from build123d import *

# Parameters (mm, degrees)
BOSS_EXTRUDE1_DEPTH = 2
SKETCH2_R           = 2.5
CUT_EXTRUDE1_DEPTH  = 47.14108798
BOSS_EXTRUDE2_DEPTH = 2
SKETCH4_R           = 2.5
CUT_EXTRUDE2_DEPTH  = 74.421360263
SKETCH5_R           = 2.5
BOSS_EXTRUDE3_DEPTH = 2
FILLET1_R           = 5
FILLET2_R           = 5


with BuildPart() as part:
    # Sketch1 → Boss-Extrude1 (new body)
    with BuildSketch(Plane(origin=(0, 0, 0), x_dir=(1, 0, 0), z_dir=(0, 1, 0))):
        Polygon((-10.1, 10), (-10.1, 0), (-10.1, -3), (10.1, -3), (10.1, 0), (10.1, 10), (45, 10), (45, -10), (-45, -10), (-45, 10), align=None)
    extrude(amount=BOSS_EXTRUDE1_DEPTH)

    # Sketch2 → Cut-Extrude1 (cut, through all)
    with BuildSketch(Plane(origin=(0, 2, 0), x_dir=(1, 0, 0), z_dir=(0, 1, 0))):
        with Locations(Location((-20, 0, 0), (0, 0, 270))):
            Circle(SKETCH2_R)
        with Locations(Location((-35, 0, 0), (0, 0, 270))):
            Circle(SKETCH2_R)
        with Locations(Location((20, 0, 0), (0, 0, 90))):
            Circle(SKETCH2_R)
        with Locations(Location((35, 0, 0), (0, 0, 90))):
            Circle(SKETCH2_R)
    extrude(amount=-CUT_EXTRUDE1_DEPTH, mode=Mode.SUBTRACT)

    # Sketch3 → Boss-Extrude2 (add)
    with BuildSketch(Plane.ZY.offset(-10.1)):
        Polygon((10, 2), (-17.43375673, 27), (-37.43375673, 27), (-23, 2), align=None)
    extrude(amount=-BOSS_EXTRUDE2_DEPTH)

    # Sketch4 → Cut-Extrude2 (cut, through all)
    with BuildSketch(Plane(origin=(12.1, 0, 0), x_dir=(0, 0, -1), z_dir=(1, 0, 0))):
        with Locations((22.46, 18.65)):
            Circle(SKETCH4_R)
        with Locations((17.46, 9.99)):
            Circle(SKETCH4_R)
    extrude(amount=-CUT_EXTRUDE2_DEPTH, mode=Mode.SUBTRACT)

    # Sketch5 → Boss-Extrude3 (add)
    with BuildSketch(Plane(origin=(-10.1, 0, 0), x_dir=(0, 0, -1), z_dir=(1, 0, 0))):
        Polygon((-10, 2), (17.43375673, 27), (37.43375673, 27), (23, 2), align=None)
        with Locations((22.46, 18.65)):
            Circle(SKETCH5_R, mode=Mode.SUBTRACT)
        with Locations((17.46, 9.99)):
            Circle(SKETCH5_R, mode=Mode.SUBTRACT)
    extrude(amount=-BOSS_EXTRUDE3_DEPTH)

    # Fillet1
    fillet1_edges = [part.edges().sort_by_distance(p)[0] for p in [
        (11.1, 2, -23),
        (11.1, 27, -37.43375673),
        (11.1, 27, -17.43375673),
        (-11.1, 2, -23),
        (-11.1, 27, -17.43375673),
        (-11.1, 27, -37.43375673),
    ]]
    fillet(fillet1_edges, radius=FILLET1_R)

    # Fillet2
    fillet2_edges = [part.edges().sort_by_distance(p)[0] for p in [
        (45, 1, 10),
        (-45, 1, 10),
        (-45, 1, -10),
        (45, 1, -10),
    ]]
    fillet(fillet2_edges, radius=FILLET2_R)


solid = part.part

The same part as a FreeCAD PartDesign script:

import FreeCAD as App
import Part
import Sketcher
Q = App.Units.Quantity


def edges_at(feature, points):
    """Names of the edges that pass closest to the given points."""
    edges = feature.Shape.Edges
    near = lambda p: min(range(len(edges)), key=lambda i: edges[i].distToShape(Part.Vertex(*p))[0])
    return sorted({f"Edge{near(p) + 1}" for p in points})

doc = App.newDocument("Part")
body = doc.addObject("PartDesign::Body", "Body")

# Sketch on XZ plane
sketch1 = body.newObject("Sketcher::SketchObject", "Sketch")
sketch1.AttachmentSupport = (doc.getObject("XZ_Plane"), [""])
sketch1.MapMode = "FlatFace"
sketch1.addGeometry(Part.LineSegment(App.Vector(-10, 3, 0), App.Vector(-10, -10, 0)), False)
sketch1.addGeometry(Part.LineSegment(App.Vector(-10, -10, 0), App.Vector(-45, -10, 0)), False)
sketch1.addGeometry(Part.LineSegment(App.Vector(-45, -10, 0), App.Vector(-45, 10, 0)), False)
sketch1.addGeometry(Part.LineSegment(App.Vector(-45, 10, 0), App.Vector(45, 10, 0)), False)
sketch1.addGeometry(Part.LineSegment(App.Vector(45, 10, 0), App.Vector(45, -10, 0)), False)
sketch1.addGeometry(Part.LineSegment(App.Vector(45, -10, 0), App.Vector(10, -10, 0)), False)
sketch1.addGeometry(Part.LineSegment(App.Vector(10, -10, 0), App.Vector(10, 3, 0)), False)
sketch1.addGeometry(Part.LineSegment(App.Vector(10, 3, 0), App.Vector(-10, 3, 0)), False)
sketch1.addConstraint(Sketcher.Constraint("Coincident", 0, 2, 1, 1))
sketch1.addConstraint(Sketcher.Constraint("Coincident", 1, 2, 2, 1))
sketch1.addConstraint(Sketcher.Constraint("Coincident", 2, 2, 3, 1))
sketch1.addConstraint(Sketcher.Constraint("Coincident", 3, 2, 4, 1))
sketch1.addConstraint(Sketcher.Constraint("Coincident", 4, 2, 5, 1))
sketch1.addConstraint(Sketcher.Constraint("Coincident", 5, 2, 6, 1))
sketch1.addConstraint(Sketcher.Constraint("Coincident", 6, 2, 7, 1))
sketch1.addConstraint(Sketcher.Constraint("Coincident", 7, 2, 0, 1))
sketch1.addConstraint(Sketcher.Constraint("Vertical", 0))
sketch1.addConstraint(Sketcher.Constraint("Horizontal", 1))
sketch1.addConstraint(Sketcher.Constraint("Vertical", 2))
sketch1.addConstraint(Sketcher.Constraint("Horizontal", 3))
sketch1.addConstraint(Sketcher.Constraint("Vertical", 4))
sketch1.addConstraint(Sketcher.Constraint("Horizontal", 5))
sketch1.addConstraint(Sketcher.Constraint("Vertical", 6))
sketch1.addConstraint(Sketcher.Constraint("Horizontal", 7))
sketch1.addConstraint(Sketcher.Constraint("Symmetric", 1, 2, 3, 2, -1, 1))
sketch1.addConstraint(Sketcher.Constraint("Symmetric", 0, 2, 5, 2, -2))
sketch1.addConstraint(Sketcher.Constraint("DistanceX", 3, 1, 3, 2, Q("90 mm")))
sketch1.addConstraint(Sketcher.Constraint("DistanceY", 0, 2, 0, 1, Q("13 mm")))
sketch1.addConstraint(Sketcher.Constraint("DistanceY", 2, 1, 2, 2, Q("20 mm")))
sketch1.addConstraint(Sketcher.Constraint("DistanceX", 1, 2, 1, 1, Q("34.9 mm")))
pad1 = body.newObject("PartDesign::Pad", "Pad")
pad1.Profile = sketch1
pad1.Length = 2
pad1.Reversed = True

# Sketch on XZ plane
sketch2 = body.newObject("Sketcher::SketchObject", "Sketch001")
sketch2.AttachmentSupport = (doc.getObject("XZ_Plane"), [""])
sketch2.MapMode = "FlatFace"
sketch2.AttachmentOffset = App.Placement(App.Vector(0, 0, -2), App.Rotation())
sketch2.addGeometry(Part.Circle(App.Vector(-20, 0, 0), App.Vector(0, 0, 1), 2.5), False)
sketch2.addGeometry(Part.Circle(App.Vector(-35, 0, 0), App.Vector(0, 0, 1), 2.5), False)
sketch2.addGeometry(Part.Circle(App.Vector(20, 0, 0), App.Vector(0, 0, 1), 2.5), False)
sketch2.addGeometry(Part.Circle(App.Vector(35, 0, 0), App.Vector(0, 0, 1), 2.5), False)
sketch2.addConstraint(Sketcher.Constraint("Equal", 0, 1))
sketch2.addConstraint(Sketcher.Constraint("Equal", 1, 2))
sketch2.addConstraint(Sketcher.Constraint("Equal", 2, 3))
sketch2.addConstraint(Sketcher.Constraint("Symmetric", 0, 3, 2, 3, -1, 1))
sketch2.addConstraint(Sketcher.Constraint("Symmetric", 1, 3, 3, 3, -1, 1))
sketch2.addConstraint(Sketcher.Constraint("PointOnObject", 0, 3, -1))
sketch2.addConstraint(Sketcher.Constraint("PointOnObject", 1, 3, -1))
sketch2.addConstraint(Sketcher.Constraint("Diameter", 0, Q("5 mm")))
sketch2.addConstraint(Sketcher.Constraint("DistanceX", 0, 3, -1, 1, Q("20 mm")))
sketch2.addConstraint(Sketcher.Constraint("DistanceX", 1, 3, -1, 1, Q("35 mm")))
pocket1 = body.newObject("PartDesign::Pocket", "Pocket")
pocket1.Profile = sketch2
pocket1.Type = "ThroughAll"
pocket1.Reversed = True

# Sketch on YZ plane
sketch3 = body.newObject("Sketcher::SketchObject", "Sketch002")
sketch3.AttachmentSupport = (doc.getObject("YZ_Plane"), [""])
sketch3.MapMode = "FlatFace"
sketch3.AttachmentOffset = App.Placement(App.Vector(0, 0, 10.1), App.Rotation())
sketch3.addGeometry(Part.LineSegment(App.Vector(2, 10, 0), App.Vector(27, -17, 0)), False)
sketch3.addGeometry(Part.LineSegment(App.Vector(27, -17, 0), App.Vector(27, -37, 0)), False)
sketch3.addGeometry(Part.LineSegment(App.Vector(27, -37, 0), App.Vector(2, -23, 0)), False)
sketch3.addGeometry(Part.LineSegment(App.Vector(2, -23, 0), App.Vector(2, 10, 0)), False)
sketch3.addConstraint(Sketcher.Constraint("Coincident", 0, 2, 1, 1))
sketch3.addConstraint(Sketcher.Constraint("Coincident", 1, 2, 2, 1))
sketch3.addConstraint(Sketcher.Constraint("Coincident", 2, 2, 3, 1))
sketch3.addConstraint(Sketcher.Constraint("Coincident", 3, 2, 0, 1))
sketch3.addConstraint(Sketcher.Constraint("Vertical", 1))
sketch3.addConstraint(Sketcher.Constraint("Vertical", 3))
sketch3.addConstraint(Sketcher.Constraint("DistanceY", 1, 2, 1, 1, Q("20 mm")))
sketch3.addConstraint(Sketcher.Constraint("DistanceY", 3, 1, 3, 2, Q("33 mm")))
sketch3.addConstraint(Sketcher.Constraint("Angle", 2, Q("150 deg")))
sketch3.addConstraint(Sketcher.Constraint("DistanceX", -1, 1, 0, 2, Q("27 mm")))
sketch3.addConstraint(Sketcher.Constraint("DistanceX", -1, 1, 2, 2, Q("2 mm")))
sketch3.addConstraint(Sketcher.Constraint("DistanceY", 2, 2, -1, 1, Q("23 mm")))
pad2 = body.newObject("PartDesign::Pad", "Pad001")
pad2.Profile = sketch3
pad2.Length = 2

# Sketch on YZ plane
sketch4 = body.newObject("Sketcher::SketchObject", "Sketch003")
sketch4.AttachmentSupport = (doc.getObject("YZ_Plane"), [""])
sketch4.MapMode = "FlatFace"
sketch4.AttachmentOffset = App.Placement(App.Vector(0, 0, 12.1), App.Rotation())
sketch4.addGeometry(Part.Circle(App.Vector(18.6, -22.5, 0), App.Vector(0, 0, 1), 2.5), False)
sketch4.addGeometry(Part.Circle(App.Vector(10, -17.5, 0), App.Vector(0, 0, 1), 2.5), False)
sketch4.addConstraint(Sketcher.Constraint("Equal", 0, 1))
sketch4.addConstraint(Sketcher.Constraint("Diameter", 0, Q("5 mm")))
sketch4.addConstraint(Sketcher.Constraint("DistanceY", 0, 3, 1, 3, Q("5 mm")))
sketch4.addConstraint(Sketcher.Constraint("DistanceX", -1, 1, 0, 3, Q("18.65 mm")))
sketch4.addConstraint(Sketcher.Constraint("DistanceY", 0, 3, -1, 1, Q("22.46 mm")))
sketch4.addConstraint(Sketcher.Constraint("DistanceX", -1, 1, 1, 3, Q("9.99 mm")))
pocket2 = body.newObject("PartDesign::Pocket", "Pocket001")
pocket2.Profile = sketch4
pocket2.Type = "ThroughAll"

# Sketch on YZ plane
sketch5 = body.newObject("Sketcher::SketchObject", "Sketch004")
sketch5.AttachmentSupport = (doc.getObject("YZ_Plane"), [""])
sketch5.MapMode = "FlatFace"
sketch5.AttachmentOffset = App.Placement(App.Vector(0, 0, -10.1), App.Rotation())
sketch5.addGeometry(Part.LineSegment(App.Vector(27, -17.4, 0), App.Vector(2, 10, 0)), False)
sketch5.addGeometry(Part.LineSegment(App.Vector(2, 10, 0), App.Vector(2, -23, 0)), False)
sketch5.addGeometry(Part.LineSegment(App.Vector(2, -23, 0), App.Vector(27, -37.4, 0)), False)
sketch5.addGeometry(Part.LineSegment(App.Vector(27, -37.4, 0), App.Vector(27, -17.4, 0)), False)
sketch5.addGeometry(Part.Circle(App.Vector(10, -17.5, 0), App.Vector(0, 0, 1), 2.5), False)
sketch5.addGeometry(Part.Circle(App.Vector(18.6, -22.5, 0), App.Vector(0, 0, 1), 2.5), False)
sketch5.addConstraint(Sketcher.Constraint("Coincident", 0, 2, 1, 1))
sketch5.addConstraint(Sketcher.Constraint("Coincident", 1, 2, 2, 1))
sketch5.addConstraint(Sketcher.Constraint("Coincident", 2, 2, 3, 1))
sketch5.addConstraint(Sketcher.Constraint("Coincident", 3, 2, 0, 1))
sketch5.addConstraint(Sketcher.Constraint("Vertical", 1))
sketch5.addConstraint(Sketcher.Constraint("Vertical", 3))
sketch5.addConstraint(Sketcher.Constraint("Equal", 4, 5))
sketch5.addConstraint(Sketcher.Constraint("Diameter", 4, Q("5 mm")))
sketch5.addConstraint(Sketcher.Constraint("DistanceY", 1, 2, 1, 1, Q("33 mm")))
sketch5.addConstraint(Sketcher.Constraint("DistanceY", 3, 1, 3, 2, Q("20 mm")))
sketch5.addConstraint(Sketcher.Constraint("Angle", 2, Q("-30 deg")))
sketch5.addConstraint(Sketcher.Constraint("DistanceX", -1, 1, 0, 2, Q("2 mm")))
sketch5.addConstraint(Sketcher.Constraint("DistanceY", -1, 1, 0, 2, Q("10 mm")))
sketch5.addConstraint(Sketcher.Constraint("DistanceX", -1, 1, 2, 2, Q("27 mm")))
sketch5.addConstraint(Sketcher.Constraint("DistanceY", 5, 3, 4, 3, Q("5 mm")))
sketch5.addConstraint(Sketcher.Constraint("DistanceX", -1, 1, 4, 3, Q("9.99 mm")))
sketch5.addConstraint(Sketcher.Constraint("DistanceY", 4, 3, -1, 1, Q("17.46 mm")))
sketch5.addConstraint(Sketcher.Constraint("DistanceX", -1, 1, 5, 3, Q("18.65 mm")))
pad3 = body.newObject("PartDesign::Pad", "Pad002")
pad3.Profile = sketch5
pad3.Length = 2
pad3.Reversed = True
doc.recompute()

fillet = body.newObject("PartDesign::Fillet", "Fillet")
fillet.Base = (pad3, edges_at(pad3, [
    (11.1, 2, -23),
    (11.1, 27, -37.434),
    (11.1, 27, -17.434),
    (-11.1, 2, -23),
    (-11.1, 27, -17.434),
    (-11.1, 27, -37.434),
]))
fillet.Radius = 5
doc.recompute()

fillet2 = body.newObject("PartDesign::Fillet", "Fillet001")
fillet2.Base = (fillet, edges_at(fillet, [
    (45, 1, 10),
    (-45, 1, 10),
    (-45, 1, -10),
    (45, 1, -10),
]))
fillet2.Radius = 5

doc.recompute()
